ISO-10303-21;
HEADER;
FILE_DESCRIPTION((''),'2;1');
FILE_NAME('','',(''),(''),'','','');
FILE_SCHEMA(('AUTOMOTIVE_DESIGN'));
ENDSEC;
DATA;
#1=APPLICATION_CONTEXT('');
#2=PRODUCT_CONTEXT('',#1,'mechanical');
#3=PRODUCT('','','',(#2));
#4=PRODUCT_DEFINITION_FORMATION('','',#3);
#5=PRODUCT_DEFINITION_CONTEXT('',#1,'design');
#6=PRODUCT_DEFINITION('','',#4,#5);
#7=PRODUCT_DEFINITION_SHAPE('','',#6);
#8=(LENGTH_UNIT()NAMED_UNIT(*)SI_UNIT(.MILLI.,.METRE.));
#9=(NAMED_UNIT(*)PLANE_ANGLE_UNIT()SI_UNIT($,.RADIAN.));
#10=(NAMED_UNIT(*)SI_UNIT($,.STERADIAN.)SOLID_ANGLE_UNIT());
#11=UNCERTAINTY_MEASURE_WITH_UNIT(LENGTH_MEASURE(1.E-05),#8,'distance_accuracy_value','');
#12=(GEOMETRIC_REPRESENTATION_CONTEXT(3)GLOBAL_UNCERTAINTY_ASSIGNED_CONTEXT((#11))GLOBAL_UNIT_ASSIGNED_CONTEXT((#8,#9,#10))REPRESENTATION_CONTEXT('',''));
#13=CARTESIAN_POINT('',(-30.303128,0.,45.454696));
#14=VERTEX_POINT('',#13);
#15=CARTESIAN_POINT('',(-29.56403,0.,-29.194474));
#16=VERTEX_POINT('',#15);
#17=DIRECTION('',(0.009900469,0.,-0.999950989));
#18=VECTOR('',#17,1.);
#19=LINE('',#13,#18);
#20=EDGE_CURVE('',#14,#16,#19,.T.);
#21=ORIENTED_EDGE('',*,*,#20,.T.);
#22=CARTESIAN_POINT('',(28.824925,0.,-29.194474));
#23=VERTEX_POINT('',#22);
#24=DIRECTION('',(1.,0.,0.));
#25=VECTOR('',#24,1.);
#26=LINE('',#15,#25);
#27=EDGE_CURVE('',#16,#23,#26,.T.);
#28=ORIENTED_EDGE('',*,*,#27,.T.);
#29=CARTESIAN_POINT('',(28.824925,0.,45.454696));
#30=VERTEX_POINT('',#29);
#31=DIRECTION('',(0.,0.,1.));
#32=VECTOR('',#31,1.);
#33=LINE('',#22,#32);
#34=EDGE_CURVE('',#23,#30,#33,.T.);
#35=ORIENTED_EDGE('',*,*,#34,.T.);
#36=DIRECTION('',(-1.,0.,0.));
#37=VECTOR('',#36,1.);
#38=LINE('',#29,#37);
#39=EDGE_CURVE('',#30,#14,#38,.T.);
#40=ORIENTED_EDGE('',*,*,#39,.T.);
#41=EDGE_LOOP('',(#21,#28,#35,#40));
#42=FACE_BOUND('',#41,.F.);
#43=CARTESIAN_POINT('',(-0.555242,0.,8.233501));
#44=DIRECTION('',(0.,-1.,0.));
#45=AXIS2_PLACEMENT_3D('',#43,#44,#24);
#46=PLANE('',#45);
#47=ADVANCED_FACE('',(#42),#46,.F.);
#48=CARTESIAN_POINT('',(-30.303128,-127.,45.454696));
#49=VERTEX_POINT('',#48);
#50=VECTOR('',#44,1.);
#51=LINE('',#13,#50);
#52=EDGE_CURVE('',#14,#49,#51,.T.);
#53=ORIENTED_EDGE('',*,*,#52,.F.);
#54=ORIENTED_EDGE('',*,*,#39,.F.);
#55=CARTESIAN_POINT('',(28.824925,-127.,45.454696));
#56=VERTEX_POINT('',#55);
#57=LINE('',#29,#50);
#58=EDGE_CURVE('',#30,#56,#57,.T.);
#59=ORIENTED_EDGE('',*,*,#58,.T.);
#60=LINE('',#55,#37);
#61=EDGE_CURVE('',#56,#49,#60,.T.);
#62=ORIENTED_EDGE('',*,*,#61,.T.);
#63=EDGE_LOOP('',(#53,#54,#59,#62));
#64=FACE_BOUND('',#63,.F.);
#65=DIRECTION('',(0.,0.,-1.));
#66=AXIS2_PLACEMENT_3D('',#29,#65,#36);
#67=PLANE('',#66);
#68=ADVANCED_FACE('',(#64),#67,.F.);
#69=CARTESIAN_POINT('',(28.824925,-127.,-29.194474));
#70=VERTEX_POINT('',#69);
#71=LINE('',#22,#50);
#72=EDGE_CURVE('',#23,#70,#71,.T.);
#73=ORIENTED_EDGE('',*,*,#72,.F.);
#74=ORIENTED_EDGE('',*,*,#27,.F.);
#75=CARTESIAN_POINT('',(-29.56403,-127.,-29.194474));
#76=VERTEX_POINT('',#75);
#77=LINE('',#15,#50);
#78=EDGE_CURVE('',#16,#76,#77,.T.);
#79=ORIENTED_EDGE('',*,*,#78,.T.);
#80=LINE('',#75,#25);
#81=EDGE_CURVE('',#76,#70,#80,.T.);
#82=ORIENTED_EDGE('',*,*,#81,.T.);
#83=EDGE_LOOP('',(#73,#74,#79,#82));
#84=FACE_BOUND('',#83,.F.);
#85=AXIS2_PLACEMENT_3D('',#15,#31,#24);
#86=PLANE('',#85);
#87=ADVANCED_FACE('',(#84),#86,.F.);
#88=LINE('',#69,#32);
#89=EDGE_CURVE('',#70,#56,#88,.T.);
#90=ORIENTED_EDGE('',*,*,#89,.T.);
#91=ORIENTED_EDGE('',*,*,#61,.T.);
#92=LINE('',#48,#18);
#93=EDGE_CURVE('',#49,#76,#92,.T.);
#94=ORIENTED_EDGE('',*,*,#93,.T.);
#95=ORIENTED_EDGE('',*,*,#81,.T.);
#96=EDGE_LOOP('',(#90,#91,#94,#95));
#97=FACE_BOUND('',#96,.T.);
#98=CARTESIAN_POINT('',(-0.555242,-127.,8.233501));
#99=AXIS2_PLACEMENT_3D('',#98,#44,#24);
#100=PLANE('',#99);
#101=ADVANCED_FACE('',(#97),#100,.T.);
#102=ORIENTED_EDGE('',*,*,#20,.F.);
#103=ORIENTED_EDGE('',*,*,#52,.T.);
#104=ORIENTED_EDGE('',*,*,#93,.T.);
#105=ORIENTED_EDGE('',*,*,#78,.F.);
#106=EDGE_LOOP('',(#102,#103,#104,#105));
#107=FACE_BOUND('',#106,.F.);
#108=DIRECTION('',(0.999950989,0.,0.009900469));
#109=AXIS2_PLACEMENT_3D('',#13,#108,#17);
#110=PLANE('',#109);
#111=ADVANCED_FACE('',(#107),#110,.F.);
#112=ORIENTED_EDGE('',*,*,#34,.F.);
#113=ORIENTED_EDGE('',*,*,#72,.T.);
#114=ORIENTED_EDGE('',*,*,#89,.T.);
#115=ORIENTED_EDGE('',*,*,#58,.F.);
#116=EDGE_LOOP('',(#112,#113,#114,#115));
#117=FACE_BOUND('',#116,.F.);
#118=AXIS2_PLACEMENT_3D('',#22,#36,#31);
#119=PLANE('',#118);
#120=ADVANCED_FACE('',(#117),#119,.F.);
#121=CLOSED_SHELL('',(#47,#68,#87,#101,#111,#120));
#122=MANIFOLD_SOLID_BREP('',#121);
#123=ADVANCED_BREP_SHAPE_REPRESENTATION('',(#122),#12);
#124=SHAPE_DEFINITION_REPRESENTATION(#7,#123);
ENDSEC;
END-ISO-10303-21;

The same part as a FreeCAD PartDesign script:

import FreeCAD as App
import Part
import Sketcher
from FreeCAD import Vector
Q = App.Units.Quantity


def add_polygon(sketch, points):
    """Adds a closed chain of lines whose ends are joined by coincident constraints."""
    first, n = sketch.GeometryCount, len(points)
    for a, b in zip(points, points[1:] + points[:1]):
        sketch.addGeometry(Part.LineSegment(App.Vector(*a, 0), App.Vector(*b, 0)), False)
    for i in range(n):
        sketch.addConstraint(Sketcher.Constraint("Coincident", first + i, 2, first + (i + 1) % n, 1))

doc = App.newDocument("Part")
body = doc.addObject("PartDesign::Body", "Body")

sketch1 = body.newObject("Sketcher::SketchObject", "Sketch")
sketch1.AttachmentSupport = (doc.getObject("XZ_Plane"), [""])
sketch1.MapMode = "FlatFace"
add_polygon(sketch1, [(29, 45), (-30, 45), (-30, -29), (29, -29)])
sketch1.addConstraint(Sketcher.Constraint("Horizontal", 0))
sketch1.addConstraint(Sketcher.Constraint("Horizontal", 2))
sketch1.addConstraint(Sketcher.Constraint("Vertical", 3))
sketch1.addConstraint(Sketcher.Constraint("DistanceY", 3, 1, 3, 2, Q("74.64917 mm")))
sketch1.addConstraint(Sketcher.Constraint("DistanceX", 0, 2, 1, 2, Q("0.739098 mm")))
sketch1.addConstraint(Sketcher.Constraint("DistanceX", 0, 2, 0, 1, Q("59.128053 mm")))
sketch1.addConstraint(Sketcher.Constraint("DistanceX", 0, 2, -1, 1, Q("30.303128 mm")))
sketch1.addConstraint(Sketcher.Constraint("DistanceY", -1, 1, 0, 2, Q("45.454696 mm")))
pad1 = body.newObject("PartDesign::Pad", "Pad")
pad1.Profile = sketch1
pad1.Length = Q("5 in")

sketch2 = body.newObject("Sketcher::SketchObject", "Sketch001")
sketch2.AttachmentSupport = (doc.getObject("XZ_Plane"), [""])
sketch2.MapMode = "FlatFace"
sketch2.AttachmentOffset = App.Placement(Vector(0, 0, 5 * 25.4), App.Rotation())
add_polygon(sketch2, [(-30, 45), (-30, -29), (29, -29), (29, 45)])
sketch2.addGeometry(Part.Circle(Vector(0, 0, 0), Vector(0, 0, 1), 17), False)
sketch2.addConstraint(Sketcher.Constraint("Horizontal", 1))
sketch2.addConstraint(Sketcher.Constraint("Vertical", 2))
sketch2.addConstraint(Sketcher.Constraint("Horizontal", 3))
sketch2.addConstraint(Sketcher.Constraint("Coincident", 4, 3, -1, 1))
sketch2.addConstraint(Sketcher.Constraint("Diameter", 4, Q("34.88391 mm")))
sketch2.addConstraint(Sketcher.Constraint("DistanceY", 2, 1, 2, 2, Q("74.64917 mm")))
sketch2.addConstraint(Sketcher.Constraint("DistanceX", 3, 2, 0, 2, Q("0.739098 mm")))
sketch2.addConstraint(Sketcher.Constraint("DistanceX", 1, 1, 1, 2, Q("58.388955 mm")))
sketch2.addConstraint(Sketcher.Constraint("DistanceX", 0, 2, -1, 1, Q("29.56403 mm")))
sketch2.addConstraint(Sketcher.Constraint("DistanceY", 0, 2, -1, 1, Q("29.194474 mm")))
pocket1 = body.newObject("PartDesign::Pocket", "Pocket")
pocket1.Profile = sketch2
pocket1.Length = Q("5.0000002 in")
pocket1.Reversed = True

doc.recompute()
